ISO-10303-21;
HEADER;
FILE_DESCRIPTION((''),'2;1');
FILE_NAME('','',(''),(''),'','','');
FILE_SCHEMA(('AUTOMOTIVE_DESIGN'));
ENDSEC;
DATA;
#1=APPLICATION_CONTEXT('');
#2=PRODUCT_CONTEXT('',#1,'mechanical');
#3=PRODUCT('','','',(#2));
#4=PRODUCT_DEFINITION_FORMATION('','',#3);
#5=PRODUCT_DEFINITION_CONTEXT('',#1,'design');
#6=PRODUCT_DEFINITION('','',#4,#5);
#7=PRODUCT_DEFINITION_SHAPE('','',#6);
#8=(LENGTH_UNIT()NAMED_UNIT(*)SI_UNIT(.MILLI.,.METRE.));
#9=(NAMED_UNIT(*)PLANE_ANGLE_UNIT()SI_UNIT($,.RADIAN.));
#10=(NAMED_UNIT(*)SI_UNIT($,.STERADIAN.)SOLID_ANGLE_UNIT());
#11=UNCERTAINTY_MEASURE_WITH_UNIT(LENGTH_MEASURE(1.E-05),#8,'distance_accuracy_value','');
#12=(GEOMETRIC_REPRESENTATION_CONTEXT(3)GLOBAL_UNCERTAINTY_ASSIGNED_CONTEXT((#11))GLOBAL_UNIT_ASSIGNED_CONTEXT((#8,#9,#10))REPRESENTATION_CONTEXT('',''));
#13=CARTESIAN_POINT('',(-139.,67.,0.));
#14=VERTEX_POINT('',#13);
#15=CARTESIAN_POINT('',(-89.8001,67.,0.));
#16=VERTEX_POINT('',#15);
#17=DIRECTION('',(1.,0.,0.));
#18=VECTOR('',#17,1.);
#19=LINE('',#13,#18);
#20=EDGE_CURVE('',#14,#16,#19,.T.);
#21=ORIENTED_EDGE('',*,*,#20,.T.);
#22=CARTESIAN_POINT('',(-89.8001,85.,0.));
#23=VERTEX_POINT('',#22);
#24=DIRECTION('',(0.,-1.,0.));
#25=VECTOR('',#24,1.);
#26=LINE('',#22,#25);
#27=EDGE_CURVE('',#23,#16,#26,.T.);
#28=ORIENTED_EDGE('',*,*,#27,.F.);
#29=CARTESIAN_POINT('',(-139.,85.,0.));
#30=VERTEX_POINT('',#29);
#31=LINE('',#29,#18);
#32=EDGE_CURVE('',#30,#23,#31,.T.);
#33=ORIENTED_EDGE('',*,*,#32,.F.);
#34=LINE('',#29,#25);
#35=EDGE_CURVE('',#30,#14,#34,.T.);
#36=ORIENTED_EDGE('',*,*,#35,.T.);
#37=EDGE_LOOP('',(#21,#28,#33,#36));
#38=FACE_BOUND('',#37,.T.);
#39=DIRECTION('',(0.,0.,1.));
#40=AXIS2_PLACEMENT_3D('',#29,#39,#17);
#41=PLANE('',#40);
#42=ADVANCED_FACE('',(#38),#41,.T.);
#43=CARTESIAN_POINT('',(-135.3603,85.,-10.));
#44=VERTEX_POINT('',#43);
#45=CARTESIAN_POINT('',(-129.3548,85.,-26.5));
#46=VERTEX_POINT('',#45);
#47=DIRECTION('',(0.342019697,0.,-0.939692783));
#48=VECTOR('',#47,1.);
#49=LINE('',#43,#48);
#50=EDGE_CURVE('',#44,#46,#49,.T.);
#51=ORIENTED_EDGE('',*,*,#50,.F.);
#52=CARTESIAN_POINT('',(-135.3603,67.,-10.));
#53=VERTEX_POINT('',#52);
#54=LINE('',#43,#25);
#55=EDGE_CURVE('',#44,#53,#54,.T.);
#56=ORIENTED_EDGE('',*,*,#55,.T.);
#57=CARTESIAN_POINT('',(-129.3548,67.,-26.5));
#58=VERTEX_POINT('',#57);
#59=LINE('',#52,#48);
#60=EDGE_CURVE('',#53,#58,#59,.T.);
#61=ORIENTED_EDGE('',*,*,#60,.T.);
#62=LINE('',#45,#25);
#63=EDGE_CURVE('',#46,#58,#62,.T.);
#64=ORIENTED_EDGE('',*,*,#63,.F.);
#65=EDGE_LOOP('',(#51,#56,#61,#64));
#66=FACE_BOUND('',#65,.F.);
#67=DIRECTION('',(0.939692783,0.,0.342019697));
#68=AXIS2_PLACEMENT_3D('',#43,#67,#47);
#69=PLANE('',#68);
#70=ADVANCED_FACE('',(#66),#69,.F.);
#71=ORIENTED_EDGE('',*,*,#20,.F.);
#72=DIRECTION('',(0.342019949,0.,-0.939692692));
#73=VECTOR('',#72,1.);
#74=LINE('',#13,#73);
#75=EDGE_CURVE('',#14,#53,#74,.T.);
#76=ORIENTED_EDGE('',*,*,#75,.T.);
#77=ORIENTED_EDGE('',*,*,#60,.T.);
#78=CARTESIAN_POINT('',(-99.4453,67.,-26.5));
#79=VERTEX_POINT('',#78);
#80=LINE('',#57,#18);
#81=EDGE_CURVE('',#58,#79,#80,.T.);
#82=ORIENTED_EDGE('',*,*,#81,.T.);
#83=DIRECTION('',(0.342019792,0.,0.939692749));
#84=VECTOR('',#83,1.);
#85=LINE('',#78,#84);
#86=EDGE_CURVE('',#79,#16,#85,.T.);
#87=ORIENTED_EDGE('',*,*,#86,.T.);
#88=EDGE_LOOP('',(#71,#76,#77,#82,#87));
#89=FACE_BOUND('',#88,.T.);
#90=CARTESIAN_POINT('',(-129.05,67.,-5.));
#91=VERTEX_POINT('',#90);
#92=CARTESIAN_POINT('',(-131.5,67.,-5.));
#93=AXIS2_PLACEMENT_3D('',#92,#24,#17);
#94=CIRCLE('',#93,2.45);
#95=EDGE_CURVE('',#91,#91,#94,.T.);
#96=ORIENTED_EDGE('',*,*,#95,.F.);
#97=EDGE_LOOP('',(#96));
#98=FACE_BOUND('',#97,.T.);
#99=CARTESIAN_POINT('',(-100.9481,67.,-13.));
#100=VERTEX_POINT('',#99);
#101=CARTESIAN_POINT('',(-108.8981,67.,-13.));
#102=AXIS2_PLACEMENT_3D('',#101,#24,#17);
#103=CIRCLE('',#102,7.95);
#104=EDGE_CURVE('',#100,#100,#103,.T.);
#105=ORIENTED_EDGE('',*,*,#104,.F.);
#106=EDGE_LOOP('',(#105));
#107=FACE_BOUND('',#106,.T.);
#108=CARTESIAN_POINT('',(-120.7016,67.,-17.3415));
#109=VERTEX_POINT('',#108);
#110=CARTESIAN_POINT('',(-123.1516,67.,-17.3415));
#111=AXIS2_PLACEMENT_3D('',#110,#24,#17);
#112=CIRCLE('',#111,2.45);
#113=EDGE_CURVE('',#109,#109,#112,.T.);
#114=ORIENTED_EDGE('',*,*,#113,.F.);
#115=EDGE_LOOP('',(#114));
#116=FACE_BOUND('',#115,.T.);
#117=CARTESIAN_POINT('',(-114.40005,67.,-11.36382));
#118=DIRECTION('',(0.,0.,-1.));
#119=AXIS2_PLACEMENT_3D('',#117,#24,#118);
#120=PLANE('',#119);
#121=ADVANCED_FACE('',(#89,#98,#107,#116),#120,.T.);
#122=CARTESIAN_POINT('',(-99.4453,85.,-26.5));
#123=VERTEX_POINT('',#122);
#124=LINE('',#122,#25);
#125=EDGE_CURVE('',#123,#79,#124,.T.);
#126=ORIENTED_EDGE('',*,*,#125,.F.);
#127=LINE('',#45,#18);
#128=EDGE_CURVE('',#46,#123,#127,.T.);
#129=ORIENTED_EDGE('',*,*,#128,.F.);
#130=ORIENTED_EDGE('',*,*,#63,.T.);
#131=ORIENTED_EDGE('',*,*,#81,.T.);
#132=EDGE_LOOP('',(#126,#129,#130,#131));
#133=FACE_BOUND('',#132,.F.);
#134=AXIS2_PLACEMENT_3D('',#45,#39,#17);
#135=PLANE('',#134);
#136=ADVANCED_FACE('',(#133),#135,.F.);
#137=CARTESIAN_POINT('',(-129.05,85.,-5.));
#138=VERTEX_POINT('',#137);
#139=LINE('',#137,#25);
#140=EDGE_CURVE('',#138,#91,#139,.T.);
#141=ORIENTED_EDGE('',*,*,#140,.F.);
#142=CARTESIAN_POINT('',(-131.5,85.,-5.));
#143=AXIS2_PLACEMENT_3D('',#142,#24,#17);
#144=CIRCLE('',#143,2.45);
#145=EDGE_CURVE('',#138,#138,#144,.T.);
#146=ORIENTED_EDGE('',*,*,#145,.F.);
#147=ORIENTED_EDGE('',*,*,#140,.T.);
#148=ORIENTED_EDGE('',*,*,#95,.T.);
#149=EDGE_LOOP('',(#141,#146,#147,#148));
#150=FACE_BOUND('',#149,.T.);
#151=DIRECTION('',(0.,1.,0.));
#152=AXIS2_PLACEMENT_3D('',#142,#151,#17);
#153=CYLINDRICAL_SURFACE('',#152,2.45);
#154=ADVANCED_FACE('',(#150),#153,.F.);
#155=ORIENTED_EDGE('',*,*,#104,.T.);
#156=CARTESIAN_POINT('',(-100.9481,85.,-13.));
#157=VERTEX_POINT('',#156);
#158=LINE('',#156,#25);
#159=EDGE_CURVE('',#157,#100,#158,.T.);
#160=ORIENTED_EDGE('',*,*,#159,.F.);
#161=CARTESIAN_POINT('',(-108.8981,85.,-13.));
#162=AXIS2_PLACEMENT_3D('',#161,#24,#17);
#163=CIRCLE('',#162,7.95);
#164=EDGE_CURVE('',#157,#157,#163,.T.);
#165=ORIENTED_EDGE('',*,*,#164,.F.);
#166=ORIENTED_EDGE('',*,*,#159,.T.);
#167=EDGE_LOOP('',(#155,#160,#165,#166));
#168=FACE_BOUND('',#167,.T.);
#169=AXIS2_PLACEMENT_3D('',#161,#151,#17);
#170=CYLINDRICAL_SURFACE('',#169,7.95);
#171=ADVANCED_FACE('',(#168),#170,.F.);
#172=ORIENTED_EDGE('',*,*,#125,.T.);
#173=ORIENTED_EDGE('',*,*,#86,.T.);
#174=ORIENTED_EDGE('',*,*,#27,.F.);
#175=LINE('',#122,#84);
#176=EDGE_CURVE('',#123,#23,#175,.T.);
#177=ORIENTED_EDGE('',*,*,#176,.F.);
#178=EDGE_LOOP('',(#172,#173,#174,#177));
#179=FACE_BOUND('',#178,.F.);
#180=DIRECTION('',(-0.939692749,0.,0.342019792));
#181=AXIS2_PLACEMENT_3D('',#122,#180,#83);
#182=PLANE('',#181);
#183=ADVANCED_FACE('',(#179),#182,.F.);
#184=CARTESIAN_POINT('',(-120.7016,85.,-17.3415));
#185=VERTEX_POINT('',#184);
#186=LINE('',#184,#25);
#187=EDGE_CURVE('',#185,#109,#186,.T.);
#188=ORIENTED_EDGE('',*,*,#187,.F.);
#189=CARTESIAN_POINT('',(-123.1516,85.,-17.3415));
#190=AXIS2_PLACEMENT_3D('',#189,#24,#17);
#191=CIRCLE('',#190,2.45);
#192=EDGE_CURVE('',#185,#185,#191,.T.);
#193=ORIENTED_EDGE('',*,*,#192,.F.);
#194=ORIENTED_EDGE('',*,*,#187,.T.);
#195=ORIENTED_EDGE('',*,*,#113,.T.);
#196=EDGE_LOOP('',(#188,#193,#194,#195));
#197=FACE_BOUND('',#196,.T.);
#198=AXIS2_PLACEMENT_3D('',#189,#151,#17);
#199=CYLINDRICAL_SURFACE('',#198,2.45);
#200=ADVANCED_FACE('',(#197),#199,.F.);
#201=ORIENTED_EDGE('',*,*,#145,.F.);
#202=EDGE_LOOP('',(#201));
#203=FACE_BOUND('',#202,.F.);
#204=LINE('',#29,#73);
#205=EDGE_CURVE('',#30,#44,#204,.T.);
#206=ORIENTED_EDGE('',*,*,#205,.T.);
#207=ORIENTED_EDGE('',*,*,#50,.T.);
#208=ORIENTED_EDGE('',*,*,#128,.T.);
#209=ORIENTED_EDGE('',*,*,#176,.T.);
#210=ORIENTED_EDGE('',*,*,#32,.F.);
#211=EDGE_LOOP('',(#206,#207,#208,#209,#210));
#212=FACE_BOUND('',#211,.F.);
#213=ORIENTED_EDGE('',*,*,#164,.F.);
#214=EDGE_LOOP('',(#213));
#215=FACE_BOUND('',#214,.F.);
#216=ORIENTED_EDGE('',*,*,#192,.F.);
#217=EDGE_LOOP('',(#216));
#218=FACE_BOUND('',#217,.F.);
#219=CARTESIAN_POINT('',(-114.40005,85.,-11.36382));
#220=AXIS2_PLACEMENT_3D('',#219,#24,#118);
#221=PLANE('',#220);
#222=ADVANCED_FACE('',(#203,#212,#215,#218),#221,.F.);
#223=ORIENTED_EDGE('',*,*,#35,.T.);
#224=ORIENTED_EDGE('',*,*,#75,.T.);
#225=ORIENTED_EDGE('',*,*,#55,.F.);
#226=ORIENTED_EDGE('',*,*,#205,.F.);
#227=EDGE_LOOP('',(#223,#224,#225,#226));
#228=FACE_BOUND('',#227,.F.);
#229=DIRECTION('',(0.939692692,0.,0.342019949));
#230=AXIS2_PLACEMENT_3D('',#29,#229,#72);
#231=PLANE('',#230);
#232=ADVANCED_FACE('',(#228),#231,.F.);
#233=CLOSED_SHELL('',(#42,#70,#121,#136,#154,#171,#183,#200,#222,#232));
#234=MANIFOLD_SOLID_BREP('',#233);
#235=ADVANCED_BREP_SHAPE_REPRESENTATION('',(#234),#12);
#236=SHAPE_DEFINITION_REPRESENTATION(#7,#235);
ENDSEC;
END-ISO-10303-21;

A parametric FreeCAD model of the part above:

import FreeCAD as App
import Part
import Sketcher
Q = App.Units.Quantity


def add_polygon(sketch, points):
    """Adds a closed chain of lines whose ends are joined by coincident constraints."""
    first, n = sketch.GeometryCount, len(points)
    for a, b in zip(points, points[1:] + points[:1]):
        sketch.addGeometry(Part.LineSegment(App.Vector(*a, 0), App.Vector(*b, 0)), False)
    for i in range(n):
        sketch.addConstraint(Sketcher.Constraint("Coincident", first + i, 2, first + (i + 1) % n, 1))

doc = App.newDocument("Part")
params = doc.addObject("Spreadsheet::Sheet", "Params")
for row, (alias, value) in enumerate([
    ("sketch1_diameter", "4.9 mm"),
    ("sketch1_diameter2", "15.9 mm"),
    ("sketch1_width", "49.2 mm"),
    ("pad1_length", "18 mm"),
], start=1):
    params.set(f"A{row}", alias)
    params.set(f"B{row}", "=" + value)
    params.setAlias(f"B{row}", alias)

body = doc.addObject("PartDesign::Body", "Body")

sketch1 = doc.addObject("Sketcher::SketchObject", "Sketch")
body.addObject(sketch1)
sketch1.AttachmentSupport = (doc.XZ_Plane, [""])
sketch1.MapMode = "FlatFace"
sketch1.AttachmentOffset = App.Placement(App.Vector(0, 0, -85), App.Rotation())
add_polygon(sketch1, [(-139, 0), (-135.3603, -10), (-129.3548, -26.5), (-99.4453, -26.5), (-89.8001, 0)])
sketch1.addGeometry(Part.Circle(App.Vector(-123.1516, -17.3415, 0), App.Vector(0, 0, 1), 2.45), False)
sketch1.addGeometry(Part.Circle(App.Vector(-131.5, -5, 0), App.Vector(0, 0, 1), 2.45), False)
sketch1.addGeometry(Part.Circle(App.Vector(-108.8981, -13, 0), App.Vector(0, 0, 1), 7.95), False)
sketch1.addConstraint([
    Sketcher.Constraint("Horizontal", 2),
    Sketcher.Constraint("Horizontal", 4),
    Sketcher.Constraint("Equal", 5, 6),
    Sketcher.Constraint("PointOnObject", 3, 2, -1),
    Sketcher.Constraint("Parallel", 0, 1),
    Sketcher.Constraint("Diameter", 5, 4.9),
    Sketcher.Constraint("Diameter", 7, 15.9),
    Sketcher.Constraint("Angle", 0, Q("-70 deg")),
    Sketcher.Constraint("Angle", 3, Q("70 deg")),
    Sketcher.Constraint("DistanceX", 4, 2, 4, 1, 49.2),
    Sketcher.Constraint("DistanceY", 6, 3, -1, 1, 5.0),
    Sketcher.Constraint("DistanceY", 7, 3, -1, 1, 13.0),
    Sketcher.Constraint("DistanceY", 0, 2, -1, 1, 10.0),
    Sketcher.Constraint("DistanceX", 4, 2, -1, 1, 139.0),
    Sketcher.Constraint("DistanceX", 6, 3, -1, 1, 131.5),
    Sketcher.Constraint("DistanceY", 1, 2, -1, 1, 26.5),
    Sketcher.Constraint("DistanceX", 7, 3, -1, 1, 108.898),
    Sketcher.Constraint("DistanceX", 5, 3, -1, 1, 123.1516),
    Sketcher.Constraint("DistanceY", 5, 3, -1, 1, 17.3415),
])
sketch1.setExpression("Constraints[10]", "Params.sketch1_diameter")
sketch1.setExpression("Constraints[11]", "Params.sketch1_diameter2")
sketch1.setExpression("Constraints[14]", "Params.sketch1_width")
pad1 = doc.addObject("PartDesign::Pad", "Pad")
body.addObject(pad1)
pad1.Profile = sketch1
pad1.setExpression("Length", "Params.pad1_length")

doc.recompute()
